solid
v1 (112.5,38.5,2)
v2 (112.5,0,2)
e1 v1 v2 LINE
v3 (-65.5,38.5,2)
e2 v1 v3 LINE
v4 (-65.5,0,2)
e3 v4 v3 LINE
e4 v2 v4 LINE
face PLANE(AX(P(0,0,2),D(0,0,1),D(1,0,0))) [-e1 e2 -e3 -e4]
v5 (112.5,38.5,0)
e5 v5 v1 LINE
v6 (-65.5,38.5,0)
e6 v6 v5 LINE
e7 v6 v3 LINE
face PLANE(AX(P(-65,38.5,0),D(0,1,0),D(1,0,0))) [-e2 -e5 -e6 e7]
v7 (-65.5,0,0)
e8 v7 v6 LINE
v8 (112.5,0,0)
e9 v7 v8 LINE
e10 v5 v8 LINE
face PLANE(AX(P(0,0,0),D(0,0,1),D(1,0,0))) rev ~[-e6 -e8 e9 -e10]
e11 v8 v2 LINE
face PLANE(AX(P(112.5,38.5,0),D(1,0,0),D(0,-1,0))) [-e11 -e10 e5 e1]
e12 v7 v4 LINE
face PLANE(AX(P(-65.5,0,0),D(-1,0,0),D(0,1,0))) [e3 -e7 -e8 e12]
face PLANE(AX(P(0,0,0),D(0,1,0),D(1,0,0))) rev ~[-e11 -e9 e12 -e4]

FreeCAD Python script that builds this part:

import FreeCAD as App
import Part
import Sketcher
Q = App.Units.Quantity


def add_polygon(sketch, points):
    """Adds a closed chain of lines whose ends are joined by coincident constraints."""
    first, n = sketch.GeometryCount, len(points)
    for a, b in zip(points, points[1:] + points[:1]):
        sketch.addGeometry(Part.LineSegment(App.Vector(*a, 0), App.Vector(*b, 0)), False)
    for i in range(n):
        sketch.addConstraint(Sketcher.Constraint("Coincident", first + i, 2, first + (i + 1) % n, 1))

doc = App.newDocument("Part")
params = doc.addObject("Spreadsheet::Sheet", "Params")
for row, (alias, value) in enumerate([
    ("sketch1_width", "178 mm"),
    ("sketch1_height", "38.5 mm"),
    ("pad1_length", "2 mm"),
], start=1):
    params.set(f"A{row}", alias)
    params.set(f"B{row}", "=" + value)
    params.setAlias(f"B{row}", alias)

body = doc.addObject("PartDesign::Body", "Body")

# Sketch on XY plane
sketch1 = doc.addObject("Sketcher::SketchObject", "Sketch")
body.addObject(sketch1)
sketch1.AttachmentSupport = (doc.XY_Plane, [""])
sketch1.MapMode = "FlatFace"
add_polygon(sketch1, [(112, 0), (112, 38), (-66, 38), (-66, 0)])  # lines 0-3
sketch1.addConstraint([
    Sketcher.Constraint("Vertical", 0),
    Sketcher.Constraint("Horizontal", 1),
    Sketcher.Constraint("Vertical", 2),
    Sketcher.Constraint("Horizontal", 3),
    Sketcher.Constraint("PointOnObject", 2, 2, -1),
    Sketcher.Constraint("DistanceX", 1, 2, 1, 1, Q("178 mm")),
    Sketcher.Constraint("DistanceY", 0, 1, 0, 2, Q("38.5 mm")),
    Sketcher.Constraint("DistanceX", -1, 1, 0, 2, Q("112.5 mm")),
])
sketch1.setExpression("Constraints[9]", "Params.sketch1_width")
sketch1.setExpression("Constraints[10]", "Params.sketch1_height")
pad1 = doc.addObject("PartDesign::Pad", "Pad")
body.addObject(pad1)
pad1.Profile = sketch1
pad1.setExpression("Length", "Params.pad1_length")

doc.recompute()
